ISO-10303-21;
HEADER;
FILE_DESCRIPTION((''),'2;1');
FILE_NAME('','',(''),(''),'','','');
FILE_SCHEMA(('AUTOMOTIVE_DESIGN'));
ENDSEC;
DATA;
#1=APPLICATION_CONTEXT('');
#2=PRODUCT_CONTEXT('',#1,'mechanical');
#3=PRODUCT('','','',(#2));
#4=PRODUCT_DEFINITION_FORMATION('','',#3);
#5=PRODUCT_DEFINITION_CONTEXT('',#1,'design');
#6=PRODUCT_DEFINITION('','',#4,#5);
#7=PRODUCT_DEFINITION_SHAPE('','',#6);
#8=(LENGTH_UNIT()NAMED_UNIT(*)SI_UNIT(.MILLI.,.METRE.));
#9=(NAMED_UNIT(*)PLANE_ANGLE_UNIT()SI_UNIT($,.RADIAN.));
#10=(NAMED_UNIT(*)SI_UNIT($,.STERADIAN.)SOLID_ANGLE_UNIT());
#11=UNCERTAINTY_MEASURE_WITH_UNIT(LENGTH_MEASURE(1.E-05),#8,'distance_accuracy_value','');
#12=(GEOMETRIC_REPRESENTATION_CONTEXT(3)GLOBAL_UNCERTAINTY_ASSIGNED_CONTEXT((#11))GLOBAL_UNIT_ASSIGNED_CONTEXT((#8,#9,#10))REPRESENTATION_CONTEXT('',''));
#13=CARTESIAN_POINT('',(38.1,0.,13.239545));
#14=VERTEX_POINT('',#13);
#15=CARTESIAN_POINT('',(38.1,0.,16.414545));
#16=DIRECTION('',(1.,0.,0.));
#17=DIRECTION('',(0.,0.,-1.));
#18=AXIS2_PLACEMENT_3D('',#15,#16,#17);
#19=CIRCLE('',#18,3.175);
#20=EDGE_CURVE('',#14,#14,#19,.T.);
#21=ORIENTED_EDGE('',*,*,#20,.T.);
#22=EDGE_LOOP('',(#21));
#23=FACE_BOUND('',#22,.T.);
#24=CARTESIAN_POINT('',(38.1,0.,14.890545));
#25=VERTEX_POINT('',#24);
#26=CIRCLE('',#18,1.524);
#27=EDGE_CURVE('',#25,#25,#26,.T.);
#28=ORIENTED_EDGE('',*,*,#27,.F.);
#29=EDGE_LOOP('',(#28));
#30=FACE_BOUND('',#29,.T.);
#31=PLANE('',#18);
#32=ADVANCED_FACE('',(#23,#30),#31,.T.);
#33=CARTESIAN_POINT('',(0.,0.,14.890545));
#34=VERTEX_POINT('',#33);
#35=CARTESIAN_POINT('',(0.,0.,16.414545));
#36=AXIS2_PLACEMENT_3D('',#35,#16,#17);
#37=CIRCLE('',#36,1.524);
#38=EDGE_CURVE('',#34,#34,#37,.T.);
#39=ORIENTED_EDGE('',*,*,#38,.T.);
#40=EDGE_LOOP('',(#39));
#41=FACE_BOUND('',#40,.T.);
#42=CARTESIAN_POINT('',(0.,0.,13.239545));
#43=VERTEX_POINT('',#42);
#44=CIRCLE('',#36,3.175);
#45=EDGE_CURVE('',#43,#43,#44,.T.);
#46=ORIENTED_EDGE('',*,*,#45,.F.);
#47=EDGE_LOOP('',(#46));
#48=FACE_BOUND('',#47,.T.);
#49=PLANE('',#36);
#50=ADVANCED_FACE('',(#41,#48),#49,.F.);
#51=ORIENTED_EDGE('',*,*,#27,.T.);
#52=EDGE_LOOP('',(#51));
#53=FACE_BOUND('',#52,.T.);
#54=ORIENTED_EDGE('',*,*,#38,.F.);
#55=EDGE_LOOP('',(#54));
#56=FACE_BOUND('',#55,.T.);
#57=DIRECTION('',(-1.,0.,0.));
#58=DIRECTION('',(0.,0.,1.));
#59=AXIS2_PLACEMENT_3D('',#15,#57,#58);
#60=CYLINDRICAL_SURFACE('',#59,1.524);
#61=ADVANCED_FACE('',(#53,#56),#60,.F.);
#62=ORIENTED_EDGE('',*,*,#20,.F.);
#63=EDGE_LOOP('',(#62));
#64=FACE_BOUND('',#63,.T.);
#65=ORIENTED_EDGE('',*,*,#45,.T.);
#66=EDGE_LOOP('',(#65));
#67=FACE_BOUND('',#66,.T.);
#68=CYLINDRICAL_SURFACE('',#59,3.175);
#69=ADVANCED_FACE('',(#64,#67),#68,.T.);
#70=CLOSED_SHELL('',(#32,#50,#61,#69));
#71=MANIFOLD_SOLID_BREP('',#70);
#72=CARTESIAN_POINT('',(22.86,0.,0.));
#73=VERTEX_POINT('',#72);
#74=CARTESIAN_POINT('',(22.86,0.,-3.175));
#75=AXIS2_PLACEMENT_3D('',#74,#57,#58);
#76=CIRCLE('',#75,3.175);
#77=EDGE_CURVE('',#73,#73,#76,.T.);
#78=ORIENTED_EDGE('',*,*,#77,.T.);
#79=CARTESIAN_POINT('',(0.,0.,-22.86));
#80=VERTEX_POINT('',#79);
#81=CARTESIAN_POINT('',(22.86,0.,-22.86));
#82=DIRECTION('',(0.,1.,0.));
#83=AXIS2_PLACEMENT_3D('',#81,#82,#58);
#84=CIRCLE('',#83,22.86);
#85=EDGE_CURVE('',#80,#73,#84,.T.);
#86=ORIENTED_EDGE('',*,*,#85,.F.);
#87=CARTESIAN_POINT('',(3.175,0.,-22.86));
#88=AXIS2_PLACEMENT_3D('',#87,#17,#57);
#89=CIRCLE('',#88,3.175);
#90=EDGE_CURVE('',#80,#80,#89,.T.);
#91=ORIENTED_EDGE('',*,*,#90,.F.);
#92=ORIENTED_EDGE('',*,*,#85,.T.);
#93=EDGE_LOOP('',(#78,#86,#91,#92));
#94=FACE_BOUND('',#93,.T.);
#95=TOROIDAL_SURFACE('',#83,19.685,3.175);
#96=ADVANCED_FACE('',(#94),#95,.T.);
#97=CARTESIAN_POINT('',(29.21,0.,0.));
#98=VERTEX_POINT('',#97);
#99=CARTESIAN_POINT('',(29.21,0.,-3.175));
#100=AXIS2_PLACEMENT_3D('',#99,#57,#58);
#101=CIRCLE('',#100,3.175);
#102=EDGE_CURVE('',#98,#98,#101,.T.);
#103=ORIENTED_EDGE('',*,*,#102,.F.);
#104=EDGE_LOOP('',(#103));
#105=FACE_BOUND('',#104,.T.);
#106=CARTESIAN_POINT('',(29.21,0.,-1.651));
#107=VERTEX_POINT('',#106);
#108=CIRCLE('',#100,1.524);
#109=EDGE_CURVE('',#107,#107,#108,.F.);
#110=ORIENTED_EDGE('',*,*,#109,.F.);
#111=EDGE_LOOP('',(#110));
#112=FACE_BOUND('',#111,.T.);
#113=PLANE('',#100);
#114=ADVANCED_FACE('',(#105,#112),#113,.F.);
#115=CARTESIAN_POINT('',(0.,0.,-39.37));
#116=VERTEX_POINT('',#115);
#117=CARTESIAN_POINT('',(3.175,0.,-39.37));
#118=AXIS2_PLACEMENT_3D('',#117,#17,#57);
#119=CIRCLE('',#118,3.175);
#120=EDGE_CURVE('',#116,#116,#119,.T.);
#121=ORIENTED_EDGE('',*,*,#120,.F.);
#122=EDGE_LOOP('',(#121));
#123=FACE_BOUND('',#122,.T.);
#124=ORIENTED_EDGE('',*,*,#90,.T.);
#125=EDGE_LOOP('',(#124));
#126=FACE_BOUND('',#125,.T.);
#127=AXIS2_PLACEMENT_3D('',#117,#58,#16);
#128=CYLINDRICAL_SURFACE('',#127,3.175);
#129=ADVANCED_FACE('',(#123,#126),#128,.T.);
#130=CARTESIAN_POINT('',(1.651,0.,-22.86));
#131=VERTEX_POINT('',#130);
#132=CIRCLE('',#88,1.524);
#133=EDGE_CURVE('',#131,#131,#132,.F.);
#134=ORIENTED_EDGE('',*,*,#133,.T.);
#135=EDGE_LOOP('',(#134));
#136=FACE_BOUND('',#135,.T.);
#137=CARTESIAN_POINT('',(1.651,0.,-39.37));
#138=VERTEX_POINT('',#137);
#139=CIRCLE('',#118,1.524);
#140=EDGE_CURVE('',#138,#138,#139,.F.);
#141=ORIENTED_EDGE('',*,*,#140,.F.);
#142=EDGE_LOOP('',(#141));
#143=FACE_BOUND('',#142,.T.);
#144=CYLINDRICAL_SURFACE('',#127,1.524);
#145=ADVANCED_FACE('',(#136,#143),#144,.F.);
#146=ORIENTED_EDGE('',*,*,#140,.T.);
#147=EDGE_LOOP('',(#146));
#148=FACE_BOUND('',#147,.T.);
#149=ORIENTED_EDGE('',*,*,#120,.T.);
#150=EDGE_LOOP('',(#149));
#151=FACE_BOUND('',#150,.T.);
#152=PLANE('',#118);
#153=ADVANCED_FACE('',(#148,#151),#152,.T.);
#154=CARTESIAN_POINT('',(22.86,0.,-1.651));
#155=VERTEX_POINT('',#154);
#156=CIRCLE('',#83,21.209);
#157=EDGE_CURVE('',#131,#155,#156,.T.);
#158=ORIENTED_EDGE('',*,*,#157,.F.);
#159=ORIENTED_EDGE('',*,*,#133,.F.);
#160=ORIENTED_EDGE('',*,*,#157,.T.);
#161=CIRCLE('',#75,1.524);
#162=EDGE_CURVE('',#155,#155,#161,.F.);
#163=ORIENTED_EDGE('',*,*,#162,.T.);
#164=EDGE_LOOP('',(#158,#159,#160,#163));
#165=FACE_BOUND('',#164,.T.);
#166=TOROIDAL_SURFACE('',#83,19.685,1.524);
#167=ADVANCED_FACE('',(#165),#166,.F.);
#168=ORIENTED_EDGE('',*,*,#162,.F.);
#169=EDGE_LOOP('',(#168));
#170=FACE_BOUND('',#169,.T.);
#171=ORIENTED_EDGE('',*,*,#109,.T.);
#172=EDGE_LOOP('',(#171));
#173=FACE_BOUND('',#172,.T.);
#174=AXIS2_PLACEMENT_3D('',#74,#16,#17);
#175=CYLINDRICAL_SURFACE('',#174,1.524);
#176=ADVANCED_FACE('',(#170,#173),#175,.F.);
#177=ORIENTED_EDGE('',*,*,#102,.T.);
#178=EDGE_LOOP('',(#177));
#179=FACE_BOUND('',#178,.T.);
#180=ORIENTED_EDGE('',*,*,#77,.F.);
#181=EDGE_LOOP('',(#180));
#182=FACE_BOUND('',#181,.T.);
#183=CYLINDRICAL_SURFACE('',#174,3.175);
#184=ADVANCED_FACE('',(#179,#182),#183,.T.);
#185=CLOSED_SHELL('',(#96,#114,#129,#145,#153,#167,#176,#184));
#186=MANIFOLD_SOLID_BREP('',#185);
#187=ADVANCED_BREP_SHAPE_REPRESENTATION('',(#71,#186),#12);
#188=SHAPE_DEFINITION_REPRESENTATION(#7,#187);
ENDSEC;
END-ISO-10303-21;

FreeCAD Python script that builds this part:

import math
import FreeCAD as App
import Part
import Sketcher
Q = App.Units.Quantity

doc = App.newDocument("Part")
body = doc.addObject("PartDesign::Body", "Body")

sketch1 = body.newObject("Sketcher::SketchObject", "Sketch")
sketch1.AttachmentSupport = (doc.getObject("YZ_Plane"), [""])
sketch1.MapMode = "FlatFace"
sketch1.AttachmentOffset = App.Placement(App.Vector(0, 0, 1.15 * 25.4), App.Rotation())
sketch1.addGeometry(Part.Circle(App.Vector(0, -3.2, 0), App.Vector(0, 0, 1), 3.2), False)
sketch1.addGeometry(Part.Circle(App.Vector(0, -3.2, 0), App.Vector(0, 0, 1), 1.5), False)
sketch1.addConstraint(Sketcher.Constraint("Coincident", 1, 3, 0, 3))
sketch1.addConstraint(Sketcher.Constraint("PointOnObject", 0, 3, -2))
sketch1.addConstraint(Sketcher.Constraint("Diameter", 0, Q("0.25 in")))
sketch1.addConstraint(Sketcher.Constraint("Diameter", 1, Q("0.12 in")))
sketch1.addConstraint(Sketcher.Constraint("DistanceY", 0, 3, -1, 1, Q("0.125 in")))

sketch2 = body.newObject("Sketcher::SketchObject", "Sketch001")
sketch2.AttachmentSupport = (doc.getObject("XZ_Plane"), [""])
sketch2.MapMode = "FlatFace"
sketch2.addGeometry(Part.LineSegment(App.Vector(0, -39, 0), App.Vector(0, -23, 0)), False)
sketch2.addGeometry(Part.ArcOfCircle(Part.Circle(App.Vector(23, -23, 0), App.Vector(0, 0, 1), 23), math.radians(90), math.radians(180)), False)
sketch2.addGeometry(Part.LineSegment(App.Vector(23, 0, 0), App.Vector(29, 0, 0)), False)
sketch2.addConstraint(Sketcher.Constraint("Tangent", 0, 2, 1, 2))
sketch2.addConstraint(Sketcher.Constraint("Tangent", 1, 1, 2, 1))
sketch2.addConstraint(Sketcher.Constraint("Vertical", 0))
sketch2.addConstraint(Sketcher.Constraint("Horizontal", 2))
sketch2.addConstraint(Sketcher.Constraint("PointOnObject", 0, 1, -2))
sketch2.addConstraint(Sketcher.Constraint("PointOnObject", 1, 1, -1))
sketch2.addConstraint(Sketcher.Constraint("Radius", 1, Q("0.9 in")))
sketch2.addConstraint(Sketcher.Constraint("DistanceX", 2, 1, 2, 2, Q("0.25 in")))
sketch2.addConstraint(Sketcher.Constraint("DistanceY", 0, 1, 0, 2, Q("0.65 in")))
doc.recompute()

additivepipe = body.newObject("PartDesign::AdditivePipe", "AdditivePipe")
additivepipe.Profile = sketch1
additivepipe.Spine = (sketch2, ["Edge1", "Edge2", "Edge3"])
body2 = doc.addObject("PartDesign::Body", "Body001")

sketch3 = body2.newObject("Sketcher::SketchObject", "Sketch002")
sketch3.AttachmentSupport = (doc.getObject("YZ_Plane001"), [""])
sketch3.MapMode = "FlatFace"
sketch3.addGeometry(Part.Circle(App.Vector(0, 16.4, 0), App.Vector(0, 0, 1), 3.2), False)
sketch3.addGeometry(Part.Circle(App.Vector(0, 16.4, 0), App.Vector(0, 0, 1), 1.5), False)
sketch3.addConstraint(Sketcher.Constraint("Coincident", 1, 3, 0, 3))
sketch3.addConstraint(Sketcher.Constraint("PointOnObject", 0, 3, -2))
sketch3.addConstraint(Sketcher.Constraint("Diameter", 0, Q("0.25 in")))
sketch3.addConstraint(Sketcher.Constraint("Diameter", 1, Q("0.12 in")))
sketch3.addConstraint(Sketcher.Constraint("DistanceY", -1, 1, 0, 3, Q("16.414545 mm")))
pad1 = body2.newObject("PartDesign::Pad", "Pad")
pad1.Profile = sketch3
pad1.Length = Q("1.5 in")

doc.recompute()
